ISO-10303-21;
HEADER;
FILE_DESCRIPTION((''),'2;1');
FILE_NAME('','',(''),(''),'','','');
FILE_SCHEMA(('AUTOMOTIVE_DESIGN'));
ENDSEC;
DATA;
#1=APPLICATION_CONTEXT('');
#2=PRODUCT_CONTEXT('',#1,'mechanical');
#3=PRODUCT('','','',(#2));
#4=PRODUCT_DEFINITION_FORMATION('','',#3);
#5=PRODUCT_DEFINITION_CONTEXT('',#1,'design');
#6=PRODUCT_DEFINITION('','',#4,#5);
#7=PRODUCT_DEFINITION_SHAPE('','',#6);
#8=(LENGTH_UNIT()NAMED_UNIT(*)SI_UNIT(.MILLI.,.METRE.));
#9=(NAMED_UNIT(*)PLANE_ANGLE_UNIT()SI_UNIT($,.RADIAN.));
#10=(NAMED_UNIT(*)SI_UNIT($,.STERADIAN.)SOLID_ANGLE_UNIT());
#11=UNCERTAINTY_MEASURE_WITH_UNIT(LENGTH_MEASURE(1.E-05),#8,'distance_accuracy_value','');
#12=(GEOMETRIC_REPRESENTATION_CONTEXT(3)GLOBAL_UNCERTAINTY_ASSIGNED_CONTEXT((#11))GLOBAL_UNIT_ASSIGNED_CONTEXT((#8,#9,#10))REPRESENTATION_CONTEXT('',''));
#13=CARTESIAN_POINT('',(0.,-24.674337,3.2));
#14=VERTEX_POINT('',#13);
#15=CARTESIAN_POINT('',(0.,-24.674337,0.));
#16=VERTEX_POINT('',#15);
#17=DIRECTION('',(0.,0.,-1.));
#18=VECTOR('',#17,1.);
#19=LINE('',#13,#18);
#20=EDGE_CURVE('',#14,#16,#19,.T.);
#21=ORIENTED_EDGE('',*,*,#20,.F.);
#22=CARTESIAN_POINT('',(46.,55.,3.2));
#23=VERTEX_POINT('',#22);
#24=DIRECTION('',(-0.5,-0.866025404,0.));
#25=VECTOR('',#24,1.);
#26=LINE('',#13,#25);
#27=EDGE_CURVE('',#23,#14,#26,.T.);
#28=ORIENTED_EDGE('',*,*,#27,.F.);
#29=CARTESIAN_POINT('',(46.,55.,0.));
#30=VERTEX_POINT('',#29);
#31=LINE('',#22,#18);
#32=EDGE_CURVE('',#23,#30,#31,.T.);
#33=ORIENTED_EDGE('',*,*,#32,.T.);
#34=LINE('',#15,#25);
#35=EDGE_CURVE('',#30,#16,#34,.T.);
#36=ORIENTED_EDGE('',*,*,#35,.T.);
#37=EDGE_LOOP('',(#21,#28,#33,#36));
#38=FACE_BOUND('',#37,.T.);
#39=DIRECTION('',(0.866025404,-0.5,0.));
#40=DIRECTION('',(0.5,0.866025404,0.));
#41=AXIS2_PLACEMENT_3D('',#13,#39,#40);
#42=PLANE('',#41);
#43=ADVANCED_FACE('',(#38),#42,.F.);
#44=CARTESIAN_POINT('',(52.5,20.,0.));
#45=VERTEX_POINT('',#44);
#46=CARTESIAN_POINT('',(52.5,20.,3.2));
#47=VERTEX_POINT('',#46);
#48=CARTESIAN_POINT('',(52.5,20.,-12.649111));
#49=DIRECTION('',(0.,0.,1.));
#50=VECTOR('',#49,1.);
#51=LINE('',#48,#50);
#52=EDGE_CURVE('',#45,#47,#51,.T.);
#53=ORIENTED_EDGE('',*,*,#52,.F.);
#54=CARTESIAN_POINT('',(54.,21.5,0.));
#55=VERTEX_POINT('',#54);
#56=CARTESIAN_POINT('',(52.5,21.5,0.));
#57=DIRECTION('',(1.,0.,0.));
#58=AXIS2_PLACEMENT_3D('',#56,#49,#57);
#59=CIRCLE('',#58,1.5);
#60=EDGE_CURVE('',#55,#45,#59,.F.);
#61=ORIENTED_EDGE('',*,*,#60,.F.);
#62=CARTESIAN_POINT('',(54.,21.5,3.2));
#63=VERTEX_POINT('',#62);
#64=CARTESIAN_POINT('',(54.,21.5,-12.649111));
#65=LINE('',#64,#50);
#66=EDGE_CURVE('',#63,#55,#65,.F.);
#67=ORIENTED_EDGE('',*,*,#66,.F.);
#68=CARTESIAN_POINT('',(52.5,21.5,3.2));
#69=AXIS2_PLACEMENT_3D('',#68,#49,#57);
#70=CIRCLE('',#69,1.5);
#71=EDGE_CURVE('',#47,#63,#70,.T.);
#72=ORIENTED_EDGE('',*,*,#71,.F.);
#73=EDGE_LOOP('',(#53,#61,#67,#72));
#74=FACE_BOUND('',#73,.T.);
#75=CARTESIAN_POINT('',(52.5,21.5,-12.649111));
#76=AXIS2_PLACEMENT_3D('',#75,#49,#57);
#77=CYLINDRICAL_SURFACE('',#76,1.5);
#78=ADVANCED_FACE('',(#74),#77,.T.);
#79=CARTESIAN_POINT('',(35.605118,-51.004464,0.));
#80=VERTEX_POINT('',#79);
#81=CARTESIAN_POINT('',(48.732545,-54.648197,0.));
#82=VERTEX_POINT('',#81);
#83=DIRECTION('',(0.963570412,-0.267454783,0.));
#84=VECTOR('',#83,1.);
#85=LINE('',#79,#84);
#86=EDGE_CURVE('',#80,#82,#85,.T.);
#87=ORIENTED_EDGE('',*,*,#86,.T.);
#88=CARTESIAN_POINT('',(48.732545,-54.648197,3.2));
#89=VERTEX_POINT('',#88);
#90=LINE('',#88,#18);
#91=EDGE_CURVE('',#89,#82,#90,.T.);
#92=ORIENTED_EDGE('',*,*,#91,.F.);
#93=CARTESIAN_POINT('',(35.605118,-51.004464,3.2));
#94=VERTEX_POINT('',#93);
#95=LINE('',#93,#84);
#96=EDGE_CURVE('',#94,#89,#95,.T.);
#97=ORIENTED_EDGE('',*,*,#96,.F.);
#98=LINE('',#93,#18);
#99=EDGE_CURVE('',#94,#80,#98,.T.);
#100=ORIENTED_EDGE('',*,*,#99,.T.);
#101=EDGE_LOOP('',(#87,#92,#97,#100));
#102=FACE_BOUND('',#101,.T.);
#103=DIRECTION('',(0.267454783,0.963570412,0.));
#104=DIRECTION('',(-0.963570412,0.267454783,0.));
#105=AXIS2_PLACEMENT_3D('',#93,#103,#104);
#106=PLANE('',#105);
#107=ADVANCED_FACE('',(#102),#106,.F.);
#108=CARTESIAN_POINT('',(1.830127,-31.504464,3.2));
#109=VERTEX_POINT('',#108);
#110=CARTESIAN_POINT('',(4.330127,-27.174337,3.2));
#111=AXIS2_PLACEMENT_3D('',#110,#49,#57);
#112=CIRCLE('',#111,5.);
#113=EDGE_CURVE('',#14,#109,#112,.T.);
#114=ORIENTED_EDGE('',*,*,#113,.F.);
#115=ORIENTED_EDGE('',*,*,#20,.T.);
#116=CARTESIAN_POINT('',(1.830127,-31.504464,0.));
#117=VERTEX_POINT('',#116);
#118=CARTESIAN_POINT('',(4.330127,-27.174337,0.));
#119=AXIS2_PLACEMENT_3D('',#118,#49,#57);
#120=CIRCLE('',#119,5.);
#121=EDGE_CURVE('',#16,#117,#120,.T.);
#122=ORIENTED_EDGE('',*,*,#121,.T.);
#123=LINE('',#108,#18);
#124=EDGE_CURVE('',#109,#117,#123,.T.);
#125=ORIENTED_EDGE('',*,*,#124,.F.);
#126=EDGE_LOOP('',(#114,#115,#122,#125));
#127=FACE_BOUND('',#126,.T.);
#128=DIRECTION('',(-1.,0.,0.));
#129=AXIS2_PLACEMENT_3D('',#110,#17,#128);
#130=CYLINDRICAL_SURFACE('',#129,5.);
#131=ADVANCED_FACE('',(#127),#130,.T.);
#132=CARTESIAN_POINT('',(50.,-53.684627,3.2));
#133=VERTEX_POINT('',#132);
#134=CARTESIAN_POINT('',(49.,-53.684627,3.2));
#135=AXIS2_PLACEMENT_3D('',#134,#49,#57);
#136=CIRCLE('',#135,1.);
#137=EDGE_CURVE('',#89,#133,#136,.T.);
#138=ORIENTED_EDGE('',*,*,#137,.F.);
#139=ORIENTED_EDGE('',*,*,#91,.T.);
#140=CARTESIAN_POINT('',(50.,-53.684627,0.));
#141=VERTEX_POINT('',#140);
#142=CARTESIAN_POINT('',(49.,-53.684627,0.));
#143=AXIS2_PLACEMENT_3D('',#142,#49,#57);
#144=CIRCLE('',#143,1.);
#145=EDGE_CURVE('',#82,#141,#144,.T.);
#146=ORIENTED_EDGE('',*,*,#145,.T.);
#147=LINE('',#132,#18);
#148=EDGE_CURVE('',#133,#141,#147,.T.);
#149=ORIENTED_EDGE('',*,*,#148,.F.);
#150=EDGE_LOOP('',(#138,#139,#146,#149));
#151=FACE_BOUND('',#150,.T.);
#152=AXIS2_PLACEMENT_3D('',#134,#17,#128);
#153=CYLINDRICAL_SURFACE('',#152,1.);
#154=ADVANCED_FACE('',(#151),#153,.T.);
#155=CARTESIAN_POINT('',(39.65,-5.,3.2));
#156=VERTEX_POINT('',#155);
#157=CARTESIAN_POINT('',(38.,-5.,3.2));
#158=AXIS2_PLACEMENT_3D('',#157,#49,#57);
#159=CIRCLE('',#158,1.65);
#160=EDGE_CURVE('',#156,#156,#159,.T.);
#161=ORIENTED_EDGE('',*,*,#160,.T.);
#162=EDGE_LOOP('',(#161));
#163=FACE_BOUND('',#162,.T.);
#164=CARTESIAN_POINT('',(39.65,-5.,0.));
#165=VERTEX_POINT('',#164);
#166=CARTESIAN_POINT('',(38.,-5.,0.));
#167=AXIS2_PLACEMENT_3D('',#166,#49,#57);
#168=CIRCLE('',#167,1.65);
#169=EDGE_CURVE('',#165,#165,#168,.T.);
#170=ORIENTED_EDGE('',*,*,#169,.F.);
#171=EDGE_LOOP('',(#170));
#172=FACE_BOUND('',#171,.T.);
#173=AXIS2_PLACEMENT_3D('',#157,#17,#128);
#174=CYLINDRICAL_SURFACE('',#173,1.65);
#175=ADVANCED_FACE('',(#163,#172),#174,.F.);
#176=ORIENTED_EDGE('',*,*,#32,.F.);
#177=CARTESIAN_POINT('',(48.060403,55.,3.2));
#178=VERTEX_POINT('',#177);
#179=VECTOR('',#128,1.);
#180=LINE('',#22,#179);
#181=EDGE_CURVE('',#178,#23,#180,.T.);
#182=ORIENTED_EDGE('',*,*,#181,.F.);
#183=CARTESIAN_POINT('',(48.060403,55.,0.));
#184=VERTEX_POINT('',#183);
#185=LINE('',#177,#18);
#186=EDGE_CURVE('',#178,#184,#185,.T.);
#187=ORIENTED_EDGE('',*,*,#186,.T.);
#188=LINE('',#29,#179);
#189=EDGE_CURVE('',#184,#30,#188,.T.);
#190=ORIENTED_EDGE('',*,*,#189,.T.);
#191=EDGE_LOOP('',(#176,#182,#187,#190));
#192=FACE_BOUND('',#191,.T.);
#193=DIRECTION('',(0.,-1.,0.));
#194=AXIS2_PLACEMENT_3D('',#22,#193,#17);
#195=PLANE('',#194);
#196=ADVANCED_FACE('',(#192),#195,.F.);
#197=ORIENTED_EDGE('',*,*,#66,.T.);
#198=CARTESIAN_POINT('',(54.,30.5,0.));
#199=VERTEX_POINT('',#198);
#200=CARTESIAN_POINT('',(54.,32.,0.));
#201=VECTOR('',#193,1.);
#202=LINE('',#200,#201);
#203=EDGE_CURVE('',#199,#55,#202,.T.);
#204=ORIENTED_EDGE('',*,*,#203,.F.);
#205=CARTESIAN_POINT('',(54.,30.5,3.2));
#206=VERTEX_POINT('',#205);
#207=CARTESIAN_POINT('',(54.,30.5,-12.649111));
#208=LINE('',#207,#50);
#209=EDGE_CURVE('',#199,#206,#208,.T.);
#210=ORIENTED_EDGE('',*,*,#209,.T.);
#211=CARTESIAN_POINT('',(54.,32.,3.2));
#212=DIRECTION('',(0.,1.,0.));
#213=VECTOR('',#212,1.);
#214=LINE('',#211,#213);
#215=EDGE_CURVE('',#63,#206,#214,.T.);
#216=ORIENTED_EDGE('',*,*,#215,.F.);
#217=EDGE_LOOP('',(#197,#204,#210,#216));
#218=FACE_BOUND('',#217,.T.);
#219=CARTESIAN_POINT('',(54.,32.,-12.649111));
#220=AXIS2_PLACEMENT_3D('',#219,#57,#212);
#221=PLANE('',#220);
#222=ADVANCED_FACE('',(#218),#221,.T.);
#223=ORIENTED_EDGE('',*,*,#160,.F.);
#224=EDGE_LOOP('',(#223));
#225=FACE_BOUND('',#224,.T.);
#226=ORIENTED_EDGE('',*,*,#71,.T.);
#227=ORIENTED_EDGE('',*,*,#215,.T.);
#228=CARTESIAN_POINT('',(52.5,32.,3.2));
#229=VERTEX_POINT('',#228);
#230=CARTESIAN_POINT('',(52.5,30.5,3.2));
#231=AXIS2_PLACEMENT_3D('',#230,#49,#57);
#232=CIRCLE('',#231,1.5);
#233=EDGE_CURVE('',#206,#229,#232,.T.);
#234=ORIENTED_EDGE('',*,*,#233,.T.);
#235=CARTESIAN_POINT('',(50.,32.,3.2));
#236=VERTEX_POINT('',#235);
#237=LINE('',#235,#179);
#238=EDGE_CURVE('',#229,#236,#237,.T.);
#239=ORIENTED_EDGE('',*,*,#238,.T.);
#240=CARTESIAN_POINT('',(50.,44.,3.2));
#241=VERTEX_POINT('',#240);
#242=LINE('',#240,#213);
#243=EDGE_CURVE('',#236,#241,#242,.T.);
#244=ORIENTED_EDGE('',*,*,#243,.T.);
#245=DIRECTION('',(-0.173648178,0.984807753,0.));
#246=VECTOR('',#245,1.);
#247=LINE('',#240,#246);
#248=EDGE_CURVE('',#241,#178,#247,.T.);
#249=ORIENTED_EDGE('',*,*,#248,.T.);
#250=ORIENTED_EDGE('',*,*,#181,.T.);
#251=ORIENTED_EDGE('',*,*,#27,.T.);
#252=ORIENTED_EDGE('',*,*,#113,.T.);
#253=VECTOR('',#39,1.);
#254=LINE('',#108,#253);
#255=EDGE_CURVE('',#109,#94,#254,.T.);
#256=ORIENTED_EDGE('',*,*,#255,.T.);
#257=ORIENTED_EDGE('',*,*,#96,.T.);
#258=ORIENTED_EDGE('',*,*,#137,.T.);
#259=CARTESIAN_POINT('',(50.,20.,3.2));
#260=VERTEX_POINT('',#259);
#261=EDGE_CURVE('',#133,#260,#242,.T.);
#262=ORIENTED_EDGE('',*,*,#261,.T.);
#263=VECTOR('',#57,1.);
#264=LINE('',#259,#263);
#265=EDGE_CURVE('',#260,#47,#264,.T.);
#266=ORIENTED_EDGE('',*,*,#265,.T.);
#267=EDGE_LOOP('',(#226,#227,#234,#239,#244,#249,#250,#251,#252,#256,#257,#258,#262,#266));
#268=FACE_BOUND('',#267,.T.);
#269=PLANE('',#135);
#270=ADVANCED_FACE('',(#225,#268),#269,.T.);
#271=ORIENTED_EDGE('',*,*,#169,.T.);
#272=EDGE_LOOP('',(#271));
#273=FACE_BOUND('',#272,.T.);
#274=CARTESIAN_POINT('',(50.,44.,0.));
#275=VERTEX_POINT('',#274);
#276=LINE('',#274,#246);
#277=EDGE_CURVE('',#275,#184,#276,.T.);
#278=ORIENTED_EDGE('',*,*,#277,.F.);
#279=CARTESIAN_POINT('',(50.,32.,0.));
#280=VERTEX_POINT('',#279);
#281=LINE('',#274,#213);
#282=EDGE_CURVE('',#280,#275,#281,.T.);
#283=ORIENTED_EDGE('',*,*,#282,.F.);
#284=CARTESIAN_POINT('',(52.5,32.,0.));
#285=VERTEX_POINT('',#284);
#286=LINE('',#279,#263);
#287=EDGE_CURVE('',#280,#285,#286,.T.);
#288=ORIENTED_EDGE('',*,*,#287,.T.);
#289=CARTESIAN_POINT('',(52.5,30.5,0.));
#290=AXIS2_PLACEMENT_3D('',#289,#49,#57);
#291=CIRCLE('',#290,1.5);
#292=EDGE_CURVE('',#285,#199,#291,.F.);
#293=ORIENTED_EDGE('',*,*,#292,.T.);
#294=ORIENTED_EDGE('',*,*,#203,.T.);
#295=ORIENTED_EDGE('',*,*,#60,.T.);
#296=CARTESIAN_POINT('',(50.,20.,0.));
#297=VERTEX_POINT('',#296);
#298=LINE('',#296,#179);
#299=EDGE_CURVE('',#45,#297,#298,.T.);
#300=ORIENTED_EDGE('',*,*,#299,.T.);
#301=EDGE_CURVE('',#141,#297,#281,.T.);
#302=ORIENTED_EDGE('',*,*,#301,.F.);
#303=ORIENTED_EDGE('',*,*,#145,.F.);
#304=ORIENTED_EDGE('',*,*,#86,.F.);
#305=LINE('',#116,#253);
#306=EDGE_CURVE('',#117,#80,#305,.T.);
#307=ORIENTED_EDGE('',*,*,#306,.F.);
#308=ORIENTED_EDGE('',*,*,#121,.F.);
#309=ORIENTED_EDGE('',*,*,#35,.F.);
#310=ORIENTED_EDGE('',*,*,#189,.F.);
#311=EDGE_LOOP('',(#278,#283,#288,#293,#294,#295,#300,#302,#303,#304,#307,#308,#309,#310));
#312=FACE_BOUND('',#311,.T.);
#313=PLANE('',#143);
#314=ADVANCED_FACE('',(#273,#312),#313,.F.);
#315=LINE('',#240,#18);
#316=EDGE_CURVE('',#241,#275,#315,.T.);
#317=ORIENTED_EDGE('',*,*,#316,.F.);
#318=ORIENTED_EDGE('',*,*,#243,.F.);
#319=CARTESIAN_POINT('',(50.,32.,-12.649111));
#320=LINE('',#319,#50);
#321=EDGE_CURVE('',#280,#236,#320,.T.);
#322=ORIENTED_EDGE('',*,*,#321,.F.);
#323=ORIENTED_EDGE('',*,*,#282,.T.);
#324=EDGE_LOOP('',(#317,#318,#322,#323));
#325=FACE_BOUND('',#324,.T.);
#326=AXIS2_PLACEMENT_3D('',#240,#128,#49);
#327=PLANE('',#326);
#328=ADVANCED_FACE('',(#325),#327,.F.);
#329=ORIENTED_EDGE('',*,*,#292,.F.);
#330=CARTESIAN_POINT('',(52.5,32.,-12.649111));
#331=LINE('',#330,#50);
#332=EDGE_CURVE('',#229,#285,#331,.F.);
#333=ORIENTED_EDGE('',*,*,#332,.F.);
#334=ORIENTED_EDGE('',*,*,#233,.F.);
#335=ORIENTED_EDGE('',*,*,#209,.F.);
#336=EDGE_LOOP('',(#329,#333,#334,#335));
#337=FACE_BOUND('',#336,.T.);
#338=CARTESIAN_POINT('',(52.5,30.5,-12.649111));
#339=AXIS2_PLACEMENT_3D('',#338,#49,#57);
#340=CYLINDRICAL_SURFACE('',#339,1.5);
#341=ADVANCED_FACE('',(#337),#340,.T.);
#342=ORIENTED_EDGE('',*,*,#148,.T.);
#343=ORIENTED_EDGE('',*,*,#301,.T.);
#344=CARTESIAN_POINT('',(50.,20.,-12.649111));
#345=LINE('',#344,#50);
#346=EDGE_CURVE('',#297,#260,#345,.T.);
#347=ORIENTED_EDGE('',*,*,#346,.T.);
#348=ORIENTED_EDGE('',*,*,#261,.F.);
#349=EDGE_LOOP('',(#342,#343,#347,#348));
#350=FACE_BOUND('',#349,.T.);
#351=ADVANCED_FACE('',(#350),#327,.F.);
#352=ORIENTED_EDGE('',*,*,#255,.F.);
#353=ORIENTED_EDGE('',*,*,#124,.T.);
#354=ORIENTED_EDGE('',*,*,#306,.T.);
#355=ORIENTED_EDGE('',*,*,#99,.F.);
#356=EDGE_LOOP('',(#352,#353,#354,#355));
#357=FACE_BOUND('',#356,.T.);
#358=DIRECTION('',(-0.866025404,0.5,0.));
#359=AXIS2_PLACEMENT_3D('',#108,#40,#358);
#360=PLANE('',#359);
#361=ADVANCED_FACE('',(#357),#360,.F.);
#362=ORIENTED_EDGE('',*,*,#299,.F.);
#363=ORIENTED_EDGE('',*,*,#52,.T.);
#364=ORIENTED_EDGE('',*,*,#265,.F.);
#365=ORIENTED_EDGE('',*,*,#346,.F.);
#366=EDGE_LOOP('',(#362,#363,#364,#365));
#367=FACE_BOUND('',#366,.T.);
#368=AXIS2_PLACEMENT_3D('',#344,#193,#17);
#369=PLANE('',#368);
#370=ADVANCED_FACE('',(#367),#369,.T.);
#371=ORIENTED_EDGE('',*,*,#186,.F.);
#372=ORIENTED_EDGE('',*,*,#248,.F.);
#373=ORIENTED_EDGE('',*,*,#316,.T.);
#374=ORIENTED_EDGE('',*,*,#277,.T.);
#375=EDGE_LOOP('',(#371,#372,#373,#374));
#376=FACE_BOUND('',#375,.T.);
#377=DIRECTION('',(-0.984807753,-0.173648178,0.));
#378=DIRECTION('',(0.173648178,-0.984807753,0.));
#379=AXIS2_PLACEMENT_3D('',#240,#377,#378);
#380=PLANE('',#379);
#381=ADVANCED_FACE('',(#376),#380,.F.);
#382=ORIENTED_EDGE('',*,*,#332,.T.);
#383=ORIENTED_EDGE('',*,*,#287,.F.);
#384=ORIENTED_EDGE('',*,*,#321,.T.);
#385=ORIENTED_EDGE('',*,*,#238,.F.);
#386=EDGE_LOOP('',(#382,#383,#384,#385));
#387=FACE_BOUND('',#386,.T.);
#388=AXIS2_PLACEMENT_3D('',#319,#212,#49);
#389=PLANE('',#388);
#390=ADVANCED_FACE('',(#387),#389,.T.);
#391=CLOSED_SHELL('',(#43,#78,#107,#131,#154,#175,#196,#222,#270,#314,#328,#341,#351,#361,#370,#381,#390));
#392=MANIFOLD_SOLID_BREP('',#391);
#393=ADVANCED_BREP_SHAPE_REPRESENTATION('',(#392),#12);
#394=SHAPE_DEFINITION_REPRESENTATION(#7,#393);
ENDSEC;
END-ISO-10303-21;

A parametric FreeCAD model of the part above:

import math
import FreeCAD as App
import Part
import Sketcher
Q = App.Units.Quantity


def edges_at(feature, points):
    """Names of the edges that pass closest to the given points."""
    edges = feature.Shape.Edges
    near = lambda p: min(range(len(edges)), key=lambda i: edges[i].distToShape(Part.Vertex(*p))[0])
    return sorted({f"Edge{near(p) + 1}" for p in points})


def add_polygon(sketch, points):
    """Adds a closed chain of lines whose ends are joined by coincident constraints."""
    first, n = sketch.GeometryCount, len(points)
    for a, b in zip(points, points[1:] + points[:1]):
        sketch.addGeometry(Part.LineSegment(App.Vector(*a, 0), App.Vector(*b, 0)), False)
    for i in range(n):
        sketch.addConstraint(Sketcher.Constraint("Coincident", first + i, 2, first + (i + 1) % n, 1))

doc = App.newDocument("Part")
params = doc.addObject("Spreadsheet::Sheet", "Params")
for row, (alias, value) in enumerate([
    ("sketch1_radius", "1 mm"),
    ("sketch1_radius2", "5 mm"),
    ("sketch1_diameter", "3.3 mm"),
    ("sketch1_length", "39 mm"),
    ("sketch1_length2", "92 mm"),
    ("pad1_length", "3.2 mm"),
    ("sketch2_width", "4 mm"),
    ("sketch2_height", "12 mm"),
    ("pad2_length", "3.2 mm"),
    ("fillet_radius", "1.5 mm"),
], start=1):
    params.set(f"A{row}", alias)
    params.set(f"B{row}", "=" + value)
    params.setAlias(f"B{row}", alias)

body = doc.addObject("PartDesign::Body", "Body")

# Sketch on XY plane
sketch1 = body.newObject("Sketcher::SketchObject", "Sketch")
sketch1.AttachmentSupport = (doc.getObject("XY_Plane"), [""])
sketch1.MapMode = "FlatFace"
sketch1.addGeometry([
    Part.LineSegment(App.Vector(1.8, -31.5, 0), App.Vector(35.6, -51, 0)),  # 0
    Part.LineSegment(App.Vector(35.6, -51, 0), App.Vector(48.7, -54.6, 0)),  # 1
    Part.ArcOfCircle(Part.Circle(App.Vector(49, -53.7, 0), App.Vector(0, 0, 1), 1), math.radians(-106), math.radians(0)),  # 2
    Part.LineSegment(App.Vector(50, -53.7, 0), App.Vector(50, 44, 0)),  # 3
    Part.LineSegment(App.Vector(50, 44, 0), App.Vector(48.1, 55, 0)),  # 4
    Part.LineSegment(App.Vector(48.1, 55, 0), App.Vector(46, 55, 0)),  # 5
    Part.LineSegment(App.Vector(46, 55, 0), App.Vector(0, -24.7, 0)),  # 6
    Part.ArcOfCircle(Part.Circle(App.Vector(4.3, -27.2, 0), App.Vector(0, 0, 1), 5), math.radians(150), math.radians(240)),  # 7
    Part.Circle(App.Vector(38, -5, 0), App.Vector(0, 0, 1), 1.6),  # 8
], False)
sketch1.addConstraint([
    Sketcher.Constraint("Coincident", 0, 2, 1, 1),
    Sketcher.Constraint("Tangent", 1, 2, 2, 1),
    Sketcher.Constraint("Tangent", 2, 2, 3, 1),
    Sketcher.Constraint("Coincident", 3, 2, 4, 1),
    Sketcher.Constraint("Coincident", 4, 2, 5, 1),
    Sketcher.Constraint("Coincident", 5, 2, 6, 1),
    Sketcher.Constraint("Tangent", 6, 2, 7, 1),
    Sketcher.Constraint("Tangent", 7, 2, 0, 1),
    Sketcher.Constraint("Vertical", 3),
    Sketcher.Constraint("Horizontal", 5),
    Sketcher.Constraint("PointOnObject", 6, 2, -2),
    Sketcher.Constraint("Perpendicular", 0, 6),
    Sketcher.Constraint("Radius", 2, Q("1 mm")),
    Sketcher.Constraint("Radius", 7, Q("5 mm")),
    Sketcher.Constraint("Diameter", 8, Q("3.3 mm")),
    Sketcher.Constraint("Angle", 0, Q("-30 deg")),
    Sketcher.Constraint("Angle", 4, Q("100 deg")),
    Sketcher.Constraint("Distance", 0, Q("39 mm")),
    Sketcher.Constraint("Distance", 6, Q("92 mm")),
    Sketcher.Constraint("DistanceX", -1, 1, 2, 3, Q("49 mm")),
    Sketcher.Constraint("DistanceX", -1, 1, 8, 3, Q("38 mm")),
    Sketcher.Constraint("DistanceY", 8, 3, -1, 1, Q("5 mm")),
    Sketcher.Constraint("DistanceY", -1, 1, 3, 2, Q("44 mm")),
    Sketcher.Constraint("DistanceY", -1, 1, 4, 2, Q("55 mm")),
    Sketcher.Constraint("DistanceY", 3, 1, 3, 2, Q("97.684627 mm")),
])
sketch1.setExpression("Constraints[12]", "Params.sketch1_radius")
sketch1.setExpression("Constraints[13]", "Params.sketch1_radius2")
sketch1.setExpression("Constraints[14]", "Params.sketch1_diameter")
sketch1.setExpression("Constraints[17]", "Params.sketch1_length")
sketch1.setExpression("Constraints[18]", "Params.sketch1_length2")
pad1 = body.newObject("PartDesign::Pad", "Pad")
pad1.Profile = sketch1
pad1.setExpression("Length", "Params.pad1_length")

# Sketch on XY plane
sketch2 = body.newObject("Sketcher::SketchObject", "Sketch001")
sketch2.AttachmentSupport = (doc.getObject("XY_Plane"), [""])
sketch2.MapMode = "FlatFace"
sketch2.AttachmentOffset = App.Placement(App.Vector(0, 0, 3.2), App.Rotation())
add_polygon(sketch2, [(50, 32), (50, 20), (54, 20), (54, 32)])  # lines 0-3
sketch2.addConstraint([
    Sketcher.Constraint("Vertical", 0),
    Sketcher.Constraint("Horizontal", 1),
    Sketcher.Constraint("Vertical", 2),
    Sketcher.Constraint("Horizontal", 3),
    Sketcher.Constraint("DistanceX", 1, 1, 1, 2, Q("4 mm")),
    Sketcher.Constraint("DistanceY", 0, 2, 0, 1, Q("12 mm")),
    Sketcher.Constraint("DistanceX", -1, 1, 0, 2, Q("50 mm")),
    Sketcher.Constraint("DistanceY", -1, 1, 0, 2, Q("20 mm")),
])
sketch2.setExpression("Constraints[8]", "Params.sketch2_width")
sketch2.setExpression("Constraints[9]", "Params.sketch2_height")
pad2 = body.newObject("PartDesign::Pad", "Pad001")
pad2.Profile = sketch2
pad2.setExpression("Length", "Params.pad2_length")
pad2.Reversed = True
doc.recompute()

fillet = body.newObject("PartDesign::Fillet", "Fillet")
fillet.Base = (pad2, edges_at(pad2, [(54, 32, 1.6), (54, 20, 1.6)]))
fillet.setExpression("Radius", "Params.fillet_radius")

doc.recompute()
